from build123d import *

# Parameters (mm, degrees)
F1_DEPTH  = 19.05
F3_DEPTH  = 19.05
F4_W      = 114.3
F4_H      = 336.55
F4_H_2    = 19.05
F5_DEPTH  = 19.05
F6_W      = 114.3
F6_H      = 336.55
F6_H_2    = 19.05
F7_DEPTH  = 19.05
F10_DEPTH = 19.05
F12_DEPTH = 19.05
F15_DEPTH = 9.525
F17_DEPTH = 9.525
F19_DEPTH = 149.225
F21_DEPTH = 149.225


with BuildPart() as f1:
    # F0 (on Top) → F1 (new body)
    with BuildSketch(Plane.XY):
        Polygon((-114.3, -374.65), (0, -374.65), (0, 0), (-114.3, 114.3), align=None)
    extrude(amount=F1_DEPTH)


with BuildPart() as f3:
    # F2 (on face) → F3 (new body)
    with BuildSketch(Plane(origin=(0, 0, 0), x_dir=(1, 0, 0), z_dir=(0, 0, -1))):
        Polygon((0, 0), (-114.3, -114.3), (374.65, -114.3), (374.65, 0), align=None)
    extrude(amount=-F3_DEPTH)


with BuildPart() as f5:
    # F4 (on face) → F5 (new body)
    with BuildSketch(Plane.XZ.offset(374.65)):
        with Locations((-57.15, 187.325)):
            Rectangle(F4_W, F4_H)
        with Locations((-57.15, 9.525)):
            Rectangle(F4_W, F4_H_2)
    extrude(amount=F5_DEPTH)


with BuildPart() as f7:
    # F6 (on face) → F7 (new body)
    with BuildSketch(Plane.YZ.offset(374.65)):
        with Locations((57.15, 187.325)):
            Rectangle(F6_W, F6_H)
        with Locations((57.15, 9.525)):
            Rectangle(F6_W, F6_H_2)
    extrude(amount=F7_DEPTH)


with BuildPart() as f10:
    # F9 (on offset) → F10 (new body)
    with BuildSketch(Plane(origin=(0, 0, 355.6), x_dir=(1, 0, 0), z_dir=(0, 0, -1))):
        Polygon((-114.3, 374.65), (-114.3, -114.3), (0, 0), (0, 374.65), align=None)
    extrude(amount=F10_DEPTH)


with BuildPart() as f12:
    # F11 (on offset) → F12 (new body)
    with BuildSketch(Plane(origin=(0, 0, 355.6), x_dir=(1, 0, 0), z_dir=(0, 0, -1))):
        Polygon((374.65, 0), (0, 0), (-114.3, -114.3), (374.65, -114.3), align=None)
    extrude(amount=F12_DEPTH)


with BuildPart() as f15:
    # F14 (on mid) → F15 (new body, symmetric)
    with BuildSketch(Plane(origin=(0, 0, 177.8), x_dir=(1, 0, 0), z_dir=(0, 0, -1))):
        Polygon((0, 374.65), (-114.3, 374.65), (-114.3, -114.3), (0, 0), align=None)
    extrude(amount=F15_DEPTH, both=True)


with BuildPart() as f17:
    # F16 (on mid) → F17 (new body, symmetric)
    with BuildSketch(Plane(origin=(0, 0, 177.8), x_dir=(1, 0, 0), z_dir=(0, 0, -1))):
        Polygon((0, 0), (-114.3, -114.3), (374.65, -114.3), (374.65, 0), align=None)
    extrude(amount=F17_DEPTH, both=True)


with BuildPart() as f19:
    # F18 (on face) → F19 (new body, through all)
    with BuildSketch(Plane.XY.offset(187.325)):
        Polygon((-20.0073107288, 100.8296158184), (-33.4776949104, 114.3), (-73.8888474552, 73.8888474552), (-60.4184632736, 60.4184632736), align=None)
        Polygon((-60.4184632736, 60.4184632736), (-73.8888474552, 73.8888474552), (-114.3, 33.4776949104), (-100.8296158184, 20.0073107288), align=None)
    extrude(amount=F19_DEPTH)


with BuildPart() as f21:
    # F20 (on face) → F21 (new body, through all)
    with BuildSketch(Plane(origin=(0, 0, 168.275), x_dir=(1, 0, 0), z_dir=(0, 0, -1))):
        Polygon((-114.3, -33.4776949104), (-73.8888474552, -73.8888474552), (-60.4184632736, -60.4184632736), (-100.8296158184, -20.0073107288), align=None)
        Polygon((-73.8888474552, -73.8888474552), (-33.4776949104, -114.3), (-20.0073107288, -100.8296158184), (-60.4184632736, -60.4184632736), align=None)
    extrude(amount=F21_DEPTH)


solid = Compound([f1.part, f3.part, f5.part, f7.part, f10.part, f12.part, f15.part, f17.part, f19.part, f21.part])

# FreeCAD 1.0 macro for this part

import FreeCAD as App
import Part
import Sketcher

V = App.Vector
Q = App.Units.Quantity


def add_polygon(sketch, points):
    """Adds a closed chain of lines whose ends are joined by coincident constraints."""
    first, n = sketch.GeometryCount, len(points)
    for a, b in zip(points, points[1:] + points[:1]):
        sketch.addGeometry(Part.LineSegment(App.Vector(*a, 0), App.Vector(*b, 0)), False)
    for i in range(n):
        sketch.addConstraint(Sketcher.Constraint("Coincident", first + i, 2, first + (i + 1) % n, 1))

doc = App.newDocument("Part")
body = doc.addObject("PartDesign::Body", "Body")

# Sketch on XY plane
sketch1 = doc.addObject("Sketcher::SketchObject", "Sketch")
body.addObject(sketch1)
sketch1.AttachmentSupport = (doc.XY_Plane, [""])
sketch1.MapMode = "FlatFace"
add_polygon(sketch1, [(-114.3, -374.65), (0, -374.65), (0, 0), (-114.3, 114.3)])  # lines 0-3
sketch1.addConstraint([
    Sketcher.Constraint("Horizontal", 0),
    Sketcher.Constraint("Vertical", 1),
    Sketcher.Constraint("Vertical", 3),
    Sketcher.Constraint("Coincident", 1, 2, -1, 1),
    Sketcher.Constraint("DistanceX", 0, 1, 0, 2, Q("4.5 in")),
    Sketcher.Constraint("Angle", 2, Q("135 deg")),
    Sketcher.Constraint("DistanceY", 1, 1, 1, 2, Q("14.75 in")),
])
pad1 = doc.addObject("PartDesign::Pad", "Pad")
body.addObject(pad1)
pad1.Profile = sketch1
pad1.Length = Q("0.75 in")
body2 = doc.addObject("PartDesign::Body", "Body001")

# Sketch on XY plane
sketch2 = doc.addObject("Sketcher::SketchObject", "Sketch001")
body2.addObject(sketch2)
sketch2.AttachmentSupport = (doc.getObject("XY_Plane001"), [""])
sketch2.MapMode = "FlatFace"
add_polygon(sketch2, [(0, 0), (-114.3, 114.3), (374.65, 114.3), (374.65, 0)])  # lines 0-3
sketch2.addConstraint([
    Sketcher.Constraint("Horizontal", 1),
    Sketcher.Constraint("Vertical", 2),
    Sketcher.Constraint("Horizontal", 3),
    Sketcher.Constraint("Coincident", 3, 2, -1, 1),
    Sketcher.Constraint("DistanceY", 2, 2, 2, 1, Q("4.5 in")),
    Sketcher.Constraint("Angle", 0, Q("135 deg")),
    Sketcher.Constraint("DistanceX", 1, 1, 1, 2, Q("19.25 in")),
])
pad2 = doc.addObject("PartDesign::Pad", "Pad001")
body2.addObject(pad2)
pad2.Profile = sketch2
pad2.Length = Q("0.75 in")
body3 = doc.addObject("PartDesign::Body", "Body002")

# Sketch on XZ plane
sketch3 = doc.addObject("Sketcher::SketchObject", "Sketch002")
body3.addObject(sketch3)
sketch3.AttachmentSupport = (doc.getObject("XZ_Plane002"), [""])
sketch3.MapMode = "FlatFace"
sketch3.AttachmentOffset = App.Placement(V(0, 0, 14.75 * 25.4), App.Rotation())
add_polygon(sketch3, [(-114.3, 355.6), (-114.3, 0), (0, 0), (0, 355.6)])  # lines 0-3
sketch3.addConstraint([
    Sketcher.Constraint("Vertical", 0),
    Sketcher.Constraint("Horizontal", 1),
    Sketcher.Constraint("Vertical", 2),
    Sketcher.Constraint("Horizontal", 3),
    Sketcher.Constraint("Coincident", 1, 2, -1, 1),
    Sketcher.Constraint("DistanceY", 0, 2, 0, 1, Q("14 in")),
    Sketcher.Constraint("DistanceX", 1, 1, 1, 2, Q("4.5 in")),
])
pad3 = doc.addObject("PartDesign::Pad", "Pad002")
body3.addObject(pad3)
pad3.Profile = sketch3
pad3.Length = Q("0.75 in")
body4 = doc.addObject("PartDesign::Body", "Body003")

# Sketch on YZ plane
sketch4 = doc.addObject("Sketcher::SketchObject", "Sketch003")
body4.addObject(sketch4)
sketch4.AttachmentSupport = (doc.getObject("YZ_Plane003"), [""])
sketch4.MapMode = "FlatFace"
sketch4.AttachmentOffset = App.Placement(V(0, 0, 14.75 * 25.4), App.Rotation())
add_polygon(sketch4, [(0, 355.6), (0, 0), (114.3, 0), (114.3, 355.6)])  # lines 0-3
sketch4.addConstraint([
    Sketcher.Constraint("Vertical", 0),
    Sketcher.Constraint("Horizontal", 1),
    Sketcher.Constraint("Vertical", 2),
    Sketcher.Constraint("Horizontal", 3),
    Sketcher.Constraint("Coincident", 0, 2, -1, 1),
    Sketcher.Constraint("DistanceY", 0, 2, 0, 1, Q("14 in")),
    Sketcher.Constraint("DistanceX", 1, 1, 1, 2, Q("4.5 in")),
])
pad4 = doc.addObject("PartDesign::Pad", "Pad003")
body4.addObject(pad4)
pad4.Profile = sketch4
pad4.Length = Q("0.75 in")
body5 = doc.addObject("PartDesign::Body", "Body004")

# Sketch on XY plane
sketch5 = doc.addObject("Sketcher::SketchObject", "Sketch004")
body5.addObject(sketch5)
sketch5.AttachmentSupport = (doc.getObject("XY_Plane004"), [""])
sketch5.MapMode = "FlatFace"
sketch5.AttachmentOffset = App.Placement(V(0, 0, 14 * 25.4), App.Rotation())
add_polygon(sketch5, [(-114.3, -374.65), (-114.3, 114.3), (0, 0), (0, -374.65)])  # lines 0-3
sketch5.addConstraint([
    Sketcher.Constraint("Vertical", 0),
    Sketcher.Constraint("Vertical", 2),
    Sketcher.Constraint("Horizontal", 3),
    Sketcher.Constraint("Coincident", 1, 2, -1, 1),
    Sketcher.Constraint("DistanceX", 3, 2, 3, 1, Q("4.5 in")),
    Sketcher.Constraint("Angle", 1, Q("-45 deg")),
    Sketcher.Constraint("DistanceY", 0, 1, 0, 2, Q("19.25 in")),
])
pad5 = doc.addObject("PartDesign::Pad", "Pad004")
body5.addObject(pad5)
pad5.Profile = sketch5
pad5.Length = Q("0.75 in")
pad5.Reversed = True
body6 = doc.addObject("PartDesign::Body", "Body005")

# Sketch on XY plane
sketch6 = doc.addObject("Sketcher::SketchObject", "Sketch005")
body6.addObject(sketch6)
sketch6.AttachmentSupport = (doc.getObject("XY_Plane005"), [""])
sketch6.MapMode = "FlatFace"
sketch6.AttachmentOffset = App.Placement(V(0, 0, 14 * 25.4), App.Rotation())
add_polygon(sketch6, [(374.65, 0), (0, 0), (-114.3, 114.3), (374.65, 114.3)])  # lines 0-3
sketch6.addConstraint([
    Sketcher.Constraint("Horizontal", 0),
    Sketcher.Constraint("Horizontal", 2),
    Sketcher.Constraint("Vertical", 3),
    Sketcher.Constraint("Coincident", 0, 2, -1, 1),
    Sketcher.Constraint("DistanceY", 3, 2, 3, 1, Q("4.5 in")),
    Sketcher.Constraint("Angle", 1, Q("135 deg")),
    Sketcher.Constraint("DistanceX", 0, 2, 0, 1, Q("14.75 in")),
])
pad6 = doc.addObject("PartDesign::Pad", "Pad005")
body6.addObject(pad6)
pad6.Profile = sketch6
pad6.Length = Q("0.75 in")
pad6.Reversed = True
body7 = doc.addObject("PartDesign::Body", "Body006")

# Sketch on XY plane
sketch7 = doc.addObject("Sketcher::SketchObject", "Sketch006")
body7.addObject(sketch7)
sketch7.AttachmentSupport = (doc.getObject("XY_Plane006"), [""])
sketch7.MapMode = "FlatFace"
sketch7.AttachmentOffset = App.Placement(V(0, 0, 7 * 25.4), App.Rotation())
add_polygon(sketch7, [(0, -374.65), (-114.3, -374.65), (-114.3, 114.3), (0, 0)])  # lines 0-3
sketch7.addConstraint([
    Sketcher.Constraint("Horizontal", 0),
    Sketcher.Constraint("Vertical", 1),
    Sketcher.Constraint("Vertical", 3),
    Sketcher.Constraint("Coincident", 2, 2, -1, 1),
    Sketcher.Constraint("DistanceX", 0, 2, 0, 1, Q("4.5 in")),
    Sketcher.Constraint("Angle", 2, Q("-45 deg")),
    Sketcher.Constraint("DistanceY", 1, 1, 1, 2, Q("19.25 in")),
])
pad7 = doc.addObject("PartDesign::Pad", "Pad006")
body7.addObject(pad7)
pad7.Profile = sketch7
pad7.Length = Q("0.75 in")
pad7.Midplane = True
body8 = doc.addObject("PartDesign::Body", "Body007")

# Sketch on XY plane
sketch8 = doc.addObject("Sketcher::SketchObject", "Sketch007")
body8.addObject(sketch8)
sketch8.AttachmentSupport = (doc.getObject("XY_Plane007"), [""])
sketch8.MapMode = "FlatFace"
sketch8.AttachmentOffset = App.Placement(V(0, 0, 7 * 25.4), App.Rotation())
add_polygon(sketch8, [(0, 0), (-114.3, 114.3), (374.65, 114.3), (374.65, 0)])  # lines 0-3
sketch8.addConstraint([
    Sketcher.Constraint("Horizontal", 1),
    Sketcher.Constraint("Vertical", 2),
    Sketcher.Constraint("Horizontal", 3),
    Sketcher.Constraint("Coincident", 3, 2, -1, 1),
    Sketcher.Constraint("DistanceY", 2, 2, 2, 1, Q("4.5 in")),
    Sketcher.Constraint("Angle", 0, Q("135 deg")),
    Sketcher.Constraint("DistanceX", 1, 1, 1, 2, Q("19.25 in")),
])
pad8 = doc.addObject("PartDesign::Pad", "Pad007")
body8.addObject(pad8)
pad8.Profile = sketch8
pad8.Length = Q("0.75 in")
pad8.Midplane = True
body9 = doc.addObject("PartDesign::Body", "Body008")

# Sketch on XY plane
sketch9 = doc.addObject("Sketcher::SketchObject", "Sketch008")
body9.addObject(sketch9)
sketch9.AttachmentSupport = (doc.getObject("XY_Plane008"), [""])
sketch9.MapMode = "FlatFace"
sketch9.AttachmentOffset = App.Placement(V(0, 0, 7.375 * 25.4), App.Rotation())
add_polygon(sketch9, [(-20.007311, 100.829616), (-33.477695, 114.3), (-114.3, 33.477695), (-100.829616, 20.007311)])  # lines 0-3
sketch9.addConstraint([
    Sketcher.Constraint("Perpendicular", 0, 1),
    Sketcher.Constraint("Perpendicular", 1, 2),
    Sketcher.Constraint("Perpendicular", 2, 3),
    Sketcher.Constraint("Angle", 0, Q("135 deg")),
    Sketcher.Constraint("Distance", 1, Q("4.5 in")),
    Sketcher.Constraint("DistanceY", -1, 1, 0, 2, Q("4.5 in")),
    Sketcher.Constraint("DistanceX", 1, 2, -1, 1, Q("4.5 in")),
    Sketcher.Constraint("Distance", 0, Q("0.75 in")),
])
pad9 = doc.addObject("PartDesign::Pad", "Pad008")
body9.addObject(pad9)
pad9.Profile = sketch9
pad9.Length = Q("5.875 in")
body10 = doc.addObject("PartDesign::Body", "Body009")

# Sketch on XY plane
sketch10 = doc.addObject("Sketcher::SketchObject", "Sketch009")
body10.addObject(sketch10)
sketch10.AttachmentSupport = (doc.getObject("XY_Plane009"), [""])
sketch10.MapMode = "FlatFace"
sketch10.AttachmentOffset = App.Placement(V(0, 0, 6.625 * 25.4), App.Rotation())
add_polygon(sketch10, [(-114.3, 33.477695), (-33.477695, 114.3), (-20.007311, 100.829616), (-100.829616, 20.007311)])  # lines 0-3
sketch10.addConstraint([
    Sketcher.Constraint("Perpendicular", 0, 1),
    Sketcher.Constraint("Perpendicular", 1, 2),
    Sketcher.Constraint("Perpendicular", 2, 3),
    Sketcher.Constraint("Angle", 0, Q("45 deg")),
    Sketcher.Constraint("Distance", 0, Q("4.5 in")),
    Sketcher.Constraint("DistanceY", -1, 1, 0, 2, Q("4.5 in")),
    Sketcher.Constraint("DistanceX", 3, 2, -1, 1, Q("4.5 in")),
    Sketcher.Constraint("Distance", 1, Q("0.75 in")),
])
pad10 = doc.addObject("PartDesign::Pad", "Pad009")
body10.addObject(pad10)
pad10.Profile = sketch10
pad10.Length = Q("5.875 in")
pad10.Reversed = True

doc.recompute()
